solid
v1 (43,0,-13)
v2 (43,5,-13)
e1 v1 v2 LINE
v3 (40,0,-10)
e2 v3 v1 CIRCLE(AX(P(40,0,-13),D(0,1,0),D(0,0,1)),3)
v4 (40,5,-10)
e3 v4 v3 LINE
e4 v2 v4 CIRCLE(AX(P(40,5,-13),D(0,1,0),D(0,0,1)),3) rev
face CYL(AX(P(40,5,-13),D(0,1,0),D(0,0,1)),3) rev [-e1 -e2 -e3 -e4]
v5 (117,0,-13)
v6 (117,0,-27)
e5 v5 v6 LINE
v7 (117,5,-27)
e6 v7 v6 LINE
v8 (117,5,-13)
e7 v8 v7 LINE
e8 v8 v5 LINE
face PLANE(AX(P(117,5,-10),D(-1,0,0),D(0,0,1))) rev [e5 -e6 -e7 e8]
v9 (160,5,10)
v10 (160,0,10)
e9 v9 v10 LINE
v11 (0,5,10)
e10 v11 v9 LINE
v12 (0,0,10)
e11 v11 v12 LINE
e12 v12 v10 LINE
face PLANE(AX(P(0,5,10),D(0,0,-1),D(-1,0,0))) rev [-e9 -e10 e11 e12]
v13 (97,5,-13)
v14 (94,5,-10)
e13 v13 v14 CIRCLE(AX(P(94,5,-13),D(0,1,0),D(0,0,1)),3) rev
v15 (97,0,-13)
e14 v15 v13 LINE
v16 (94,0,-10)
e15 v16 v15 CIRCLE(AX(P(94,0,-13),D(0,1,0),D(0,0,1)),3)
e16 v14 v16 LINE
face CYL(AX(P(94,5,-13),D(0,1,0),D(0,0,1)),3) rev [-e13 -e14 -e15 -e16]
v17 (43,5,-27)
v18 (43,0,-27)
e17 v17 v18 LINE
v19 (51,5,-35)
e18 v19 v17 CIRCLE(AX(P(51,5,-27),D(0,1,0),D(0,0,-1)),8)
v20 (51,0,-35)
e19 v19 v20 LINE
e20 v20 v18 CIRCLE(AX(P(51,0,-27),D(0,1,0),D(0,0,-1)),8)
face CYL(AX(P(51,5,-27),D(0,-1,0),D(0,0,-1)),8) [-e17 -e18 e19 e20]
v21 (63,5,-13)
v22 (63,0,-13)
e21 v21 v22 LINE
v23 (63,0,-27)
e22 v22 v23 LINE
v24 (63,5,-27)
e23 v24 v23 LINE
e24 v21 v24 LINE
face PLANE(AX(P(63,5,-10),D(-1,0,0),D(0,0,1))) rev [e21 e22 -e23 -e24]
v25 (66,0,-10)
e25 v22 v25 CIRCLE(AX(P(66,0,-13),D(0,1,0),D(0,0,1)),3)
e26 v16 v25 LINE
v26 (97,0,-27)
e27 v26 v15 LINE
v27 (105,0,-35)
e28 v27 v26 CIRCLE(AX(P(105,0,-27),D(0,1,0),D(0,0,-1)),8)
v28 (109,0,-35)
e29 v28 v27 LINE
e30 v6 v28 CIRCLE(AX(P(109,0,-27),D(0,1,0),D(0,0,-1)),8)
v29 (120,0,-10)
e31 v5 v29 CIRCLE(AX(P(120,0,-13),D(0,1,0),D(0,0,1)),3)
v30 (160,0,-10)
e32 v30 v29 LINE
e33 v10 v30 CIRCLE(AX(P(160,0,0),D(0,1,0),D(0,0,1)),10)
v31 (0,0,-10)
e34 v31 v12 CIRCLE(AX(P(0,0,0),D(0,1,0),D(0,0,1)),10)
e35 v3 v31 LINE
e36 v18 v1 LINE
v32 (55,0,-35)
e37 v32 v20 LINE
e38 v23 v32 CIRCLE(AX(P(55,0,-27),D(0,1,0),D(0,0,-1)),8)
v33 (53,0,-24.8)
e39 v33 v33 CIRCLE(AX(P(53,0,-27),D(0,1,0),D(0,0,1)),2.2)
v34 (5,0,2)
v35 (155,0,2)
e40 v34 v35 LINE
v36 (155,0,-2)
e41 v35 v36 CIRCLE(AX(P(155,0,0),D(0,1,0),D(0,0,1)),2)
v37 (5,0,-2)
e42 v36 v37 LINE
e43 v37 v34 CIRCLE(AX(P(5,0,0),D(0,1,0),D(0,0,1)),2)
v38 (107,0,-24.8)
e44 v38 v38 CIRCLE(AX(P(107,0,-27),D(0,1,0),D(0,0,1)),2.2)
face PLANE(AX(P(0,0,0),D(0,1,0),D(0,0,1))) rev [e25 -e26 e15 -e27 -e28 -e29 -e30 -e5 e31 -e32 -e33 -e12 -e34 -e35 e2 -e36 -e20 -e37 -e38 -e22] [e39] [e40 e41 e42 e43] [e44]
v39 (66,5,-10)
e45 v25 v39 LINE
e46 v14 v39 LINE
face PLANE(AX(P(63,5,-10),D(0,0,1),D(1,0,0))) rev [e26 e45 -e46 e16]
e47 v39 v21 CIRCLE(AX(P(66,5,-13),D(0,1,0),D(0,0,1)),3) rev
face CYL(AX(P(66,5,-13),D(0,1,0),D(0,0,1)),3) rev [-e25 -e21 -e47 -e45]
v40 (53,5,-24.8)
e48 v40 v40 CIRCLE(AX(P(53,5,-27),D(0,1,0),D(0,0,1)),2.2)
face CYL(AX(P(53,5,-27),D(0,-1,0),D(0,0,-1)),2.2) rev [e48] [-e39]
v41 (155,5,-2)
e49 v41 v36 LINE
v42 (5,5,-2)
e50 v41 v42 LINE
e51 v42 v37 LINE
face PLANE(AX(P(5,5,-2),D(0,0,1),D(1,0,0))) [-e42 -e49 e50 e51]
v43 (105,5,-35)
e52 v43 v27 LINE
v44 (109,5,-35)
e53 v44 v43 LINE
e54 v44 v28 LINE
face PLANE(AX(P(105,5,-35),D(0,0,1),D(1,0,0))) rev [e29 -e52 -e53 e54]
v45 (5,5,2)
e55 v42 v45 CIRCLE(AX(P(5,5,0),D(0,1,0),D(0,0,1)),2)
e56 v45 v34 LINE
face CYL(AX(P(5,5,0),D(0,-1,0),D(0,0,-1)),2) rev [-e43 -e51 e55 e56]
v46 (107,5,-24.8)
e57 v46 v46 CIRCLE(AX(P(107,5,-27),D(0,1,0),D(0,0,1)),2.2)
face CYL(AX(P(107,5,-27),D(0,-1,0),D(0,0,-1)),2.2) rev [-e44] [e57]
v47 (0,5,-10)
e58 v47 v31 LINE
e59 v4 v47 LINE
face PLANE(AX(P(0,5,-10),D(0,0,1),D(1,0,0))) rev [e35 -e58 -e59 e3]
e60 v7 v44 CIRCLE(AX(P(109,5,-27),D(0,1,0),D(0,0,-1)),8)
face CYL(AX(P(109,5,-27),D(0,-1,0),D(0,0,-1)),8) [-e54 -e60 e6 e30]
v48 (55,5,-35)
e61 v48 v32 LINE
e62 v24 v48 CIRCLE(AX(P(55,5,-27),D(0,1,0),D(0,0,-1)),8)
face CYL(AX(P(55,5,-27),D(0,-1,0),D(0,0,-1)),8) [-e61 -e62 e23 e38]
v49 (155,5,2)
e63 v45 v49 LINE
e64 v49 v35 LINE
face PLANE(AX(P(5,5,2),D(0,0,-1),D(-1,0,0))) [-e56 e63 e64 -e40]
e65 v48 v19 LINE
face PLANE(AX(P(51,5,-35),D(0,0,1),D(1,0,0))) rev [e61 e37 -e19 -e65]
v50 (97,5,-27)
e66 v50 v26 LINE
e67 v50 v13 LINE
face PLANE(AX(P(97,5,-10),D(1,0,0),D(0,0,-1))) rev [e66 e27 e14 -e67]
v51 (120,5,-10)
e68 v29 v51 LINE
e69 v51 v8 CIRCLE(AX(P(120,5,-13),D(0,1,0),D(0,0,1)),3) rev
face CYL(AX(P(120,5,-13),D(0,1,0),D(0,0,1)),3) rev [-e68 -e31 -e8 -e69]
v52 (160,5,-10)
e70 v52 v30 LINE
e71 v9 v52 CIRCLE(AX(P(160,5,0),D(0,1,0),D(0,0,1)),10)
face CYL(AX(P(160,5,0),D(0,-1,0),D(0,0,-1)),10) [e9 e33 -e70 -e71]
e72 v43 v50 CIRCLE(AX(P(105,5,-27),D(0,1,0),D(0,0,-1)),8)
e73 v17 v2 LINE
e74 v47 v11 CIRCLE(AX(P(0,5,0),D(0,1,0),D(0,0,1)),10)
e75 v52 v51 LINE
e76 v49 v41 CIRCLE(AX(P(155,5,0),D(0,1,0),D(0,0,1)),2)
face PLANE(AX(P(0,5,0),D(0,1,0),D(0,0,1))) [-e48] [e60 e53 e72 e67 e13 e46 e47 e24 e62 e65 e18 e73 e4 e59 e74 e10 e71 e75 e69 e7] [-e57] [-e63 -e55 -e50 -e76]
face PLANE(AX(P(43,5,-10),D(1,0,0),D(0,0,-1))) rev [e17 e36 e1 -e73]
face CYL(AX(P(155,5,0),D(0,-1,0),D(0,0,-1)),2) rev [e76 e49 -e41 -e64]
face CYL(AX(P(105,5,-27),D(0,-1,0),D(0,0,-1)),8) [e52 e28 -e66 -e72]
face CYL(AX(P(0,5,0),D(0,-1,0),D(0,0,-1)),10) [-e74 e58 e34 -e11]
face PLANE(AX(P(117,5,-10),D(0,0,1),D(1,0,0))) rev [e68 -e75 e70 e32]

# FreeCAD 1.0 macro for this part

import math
import FreeCAD as App
import Part
import Sketcher

V = App.Vector
Q = App.Units.Quantity


def edges_at(feature, points):
    """Names of the edges that pass closest to the given points."""
    edges = feature.Shape.Edges
    near = lambda p: min(range(len(edges)), key=lambda i: edges[i].distToShape(Part.Vertex(*p))[0])
    return sorted({f"Edge{near(p) + 1}" for p in points})

doc = App.newDocument("Part")
body = doc.addObject("PartDesign::Body", "Body")

# Sketch on XZ plane
sketch1 = body.newObject("Sketcher::SketchObject", "Sketch")
sketch1.AttachmentSupport = (doc.getObject("XZ_Plane"), [""])
sketch1.MapMode = "FlatFace"
sketch1.addGeometry(Part.LineSegment(V(43, -10, 0), V(0, -10, 0)), False)
sketch1.addGeometry(Part.ArcOfCircle(Part.Circle(V(0, 0, 0), V(0, 0, 1), 10), math.radians(90), math.radians(270)), False)
sketch1.addGeometry(Part.LineSegment(V(0, 10, 0), V(160, 10, 0)), False)
sketch1.addGeometry(Part.ArcOfCircle(Part.Circle(V(160, 0, 0), V(0, 0, 1), 10), math.radians(-90), math.radians(90)), False)
sketch1.addGeometry(Part.LineSegment(V(160, -10, 0), V(117, -10, 0)), False)
sketch1.addGeometry(Part.LineSegment(V(117, -10, 0), V(117, -27, 0)), False)
sketch1.addGeometry(Part.ArcOfCircle(Part.Circle(V(109, -27, 0), V(0, 0, 1), 8), math.radians(-90), math.radians(0)), False)
sketch1.addGeometry(Part.LineSegment(V(109, -35, 0), V(105, -35, 0)), False)
sketch1.addGeometry(Part.ArcOfCircle(Part.Circle(V(105, -27, 0), V(0, 0, 1), 8), math.radians(-180), math.radians(-90)), False)
sketch1.addGeometry(Part.LineSegment(V(97, -27, 0), V(97, -10, 0)), False)
sketch1.addGeometry(Part.LineSegment(V(97, -10, 0), V(63, -10, 0)), False)
sketch1.addGeometry(Part.LineSegment(V(63, -10, 0), V(63, -27, 0)), False)
sketch1.addGeometry(Part.ArcOfCircle(Part.Circle(V(55, -27, 0), V(0, 0, 1), 8), math.radians(-90), math.radians(0)), False)
sketch1.addGeometry(Part.LineSegment(V(55, -35, 0), V(51, -35, 0)), False)
sketch1.addGeometry(Part.ArcOfCircle(Part.Circle(V(51, -27, 0), V(0, 0, 1), 8), math.radians(-180), math.radians(-90)), False)
sketch1.addGeometry(Part.LineSegment(V(43, -27, 0), V(43, -10, 0)), False)
sketch1.addGeometry(Part.LineSegment(V(5, -2, 0), V(155, -2, 0)), False)
sketch1.addGeometry(Part.ArcOfCircle(Part.Circle(V(155, 0, 0), V(0, 0, 1), 2), math.radians(-90), math.radians(90)), False)
sketch1.addGeometry(Part.LineSegment(V(155, 2, 0), V(5, 2, 0)), False)
sketch1.addGeometry(Part.ArcOfCircle(Part.Circle(V(5, 0, 0), V(0, 0, 1), 2), math.radians(90), math.radians(270)), False)
sketch1.addGeometry(Part.Circle(V(107, -27, 0), V(0, 0, 1), 2.2), False)
sketch1.addGeometry(Part.Circle(V(53, -27, 0), V(0, 0, 1), 2.2), False)
sketch1.addConstraint(Sketcher.Constraint("Tangent", 0, 2, 1, 2))
sketch1.addConstraint(Sketcher.Constraint("Tangent", 1, 1, 2, 1))
sketch1.addConstraint(Sketcher.Constraint("Tangent", 2, 2, 3, 2))
sketch1.addConstraint(Sketcher.Constraint("Tangent", 3, 1, 4, 1))
sketch1.addConstraint(Sketcher.Constraint("Coincident", 4, 2, 5, 1))
sketch1.addConstraint(Sketcher.Constraint("Tangent", 5, 2, 6, 2))
sketch1.addConstraint(Sketcher.Constraint("Tangent", 6, 1, 7, 1))
sketch1.addConstraint(Sketcher.Constraint("Tangent", 7, 2, 8, 2))
sketch1.addConstraint(Sketcher.Constraint("Tangent", 8, 1, 9, 1))
sketch1.addConstraint(Sketcher.Constraint("Coincident", 9, 2, 10, 1))
sketch1.addConstraint(Sketcher.Constraint("Coincident", 10, 2, 11, 1))
sketch1.addConstraint(Sketcher.Constraint("Tangent", 11, 2, 12, 2))
sketch1.addConstraint(Sketcher.Constraint("Tangent", 12, 1, 13, 1))
sketch1.addConstraint(Sketcher.Constraint("Tangent", 13, 2, 14, 2))
sketch1.addConstraint(Sketcher.Constraint("Tangent", 14, 1, 15, 1))
sketch1.addConstraint(Sketcher.Constraint("Coincident", 15, 2, 0, 1))
sketch1.addConstraint(Sketcher.Constraint("Tangent", 16, 2, 17, 1))
sketch1.addConstraint(Sketcher.Constraint("Tangent", 17, 2, 18, 1))
sketch1.addConstraint(Sketcher.Constraint("Tangent", 18, 2, 19, 1))
sketch1.addConstraint(Sketcher.Constraint("Tangent", 19, 2, 16, 1))
sketch1.addConstraint(Sketcher.Constraint("Horizontal", 0))
sketch1.addConstraint(Sketcher.Constraint("Horizontal", 2))
sketch1.addConstraint(Sketcher.Constraint("Horizontal", 4))
sketch1.addConstraint(Sketcher.Constraint("Vertical", 5))
sketch1.addConstraint(Sketcher.Constraint("Horizontal", 7))
sketch1.addConstraint(Sketcher.Constraint("Vertical", 9))
sketch1.addConstraint(Sketcher.Constraint("Horizontal", 10))
sketch1.addConstraint(Sketcher.Constraint("Vertical", 11))
sketch1.addConstraint(Sketcher.Constraint("Horizontal", 13))
sketch1.addConstraint(Sketcher.Constraint("Vertical", 15))
sketch1.addConstraint(Sketcher.Constraint("Horizontal", 16))
sketch1.addConstraint(Sketcher.Constraint("Horizontal", 18))
sketch1.addConstraint(Sketcher.Constraint("Coincident", 1, 3, -1, 1))
sketch1.addConstraint(Sketcher.Constraint("Equal", 1, 3))
sketch1.addConstraint(Sketcher.Constraint("Equal", 6, 8))
sketch1.addConstraint(Sketcher.Constraint("Equal", 8, 12))
sketch1.addConstraint(Sketcher.Constraint("Equal", 12, 14))
sketch1.addConstraint(Sketcher.Constraint("Equal", 20, 21))
sketch1.addConstraint(Sketcher.Constraint("PointOnObject", 17, 3, -1))
sketch1.addConstraint(Sketcher.Constraint("Horizontal", 8, 3, 12, 3))
sketch1.addConstraint(Sketcher.Constraint("Horizontal", 14, 3, 20, 3))
sketch1.addConstraint(Sketcher.Constraint("Horizontal", 20, 3, 21, 3))
sketch1.addConstraint(Sketcher.Constraint("Horizontal", 4, 2, 9, 2))
sketch1.addConstraint(Sketcher.Constraint("Equal", 0, 4))
sketch1.addConstraint(Sketcher.Constraint("Equal", 7, 13))
sketch1.addConstraint(Sketcher.Constraint("Radius", 1, Q("10 mm")))
sketch1.addConstraint(Sketcher.Constraint("Radius", 6, Q("8 mm")))
sketch1.addConstraint(Sketcher.Constraint("Radius", 17, Q("2 mm")))
sketch1.addConstraint(Sketcher.Constraint("Diameter", 20, Q("4.4 mm")))
sketch1.addConstraint(Sketcher.Constraint("DistanceX", 0, 2, 0, 1, Q("43 mm")))
sketch1.addConstraint(Sketcher.Constraint("DistanceX", 2, 1, 2, 2, Q("160 mm")))
sketch1.addConstraint(Sketcher.Constraint("DistanceX", 7, 2, 7, 1, Q("4 mm")))
sketch1.addConstraint(Sketcher.Constraint("DistanceX", 16, 1, 16, 2, Q("150 mm")))
sketch1.addConstraint(Sketcher.Constraint("DistanceY", 5, 2, 5, 1, Q("17 mm")))
sketch1.addConstraint(Sketcher.Constraint("DistanceX", -1, 1, 17, 3, Q("155 mm")))
sketch1.addConstraint(Sketcher.Constraint("DistanceX", -1, 1, 20, 3, Q("107 mm")))
sketch1.addConstraint(Sketcher.Constraint("DistanceX", -1, 1, 21, 3, Q("53 mm")))
pad1 = body.newObject("PartDesign::Pad", "Pad")
pad1.Profile = sketch1
pad1.Length = 5
pad1.Reversed = True
doc.recompute()

fillet = body.newObject("PartDesign::Fillet", "Fillet")
fillet.Base = (pad1, edges_at(pad1, [
    (43, 2.5, -10),
    (63, 2.5, -10),
    (97, 2.5, -10),
    (117, 2.5, -10),
]))
fillet.Radius = 3

doc.recompute()
